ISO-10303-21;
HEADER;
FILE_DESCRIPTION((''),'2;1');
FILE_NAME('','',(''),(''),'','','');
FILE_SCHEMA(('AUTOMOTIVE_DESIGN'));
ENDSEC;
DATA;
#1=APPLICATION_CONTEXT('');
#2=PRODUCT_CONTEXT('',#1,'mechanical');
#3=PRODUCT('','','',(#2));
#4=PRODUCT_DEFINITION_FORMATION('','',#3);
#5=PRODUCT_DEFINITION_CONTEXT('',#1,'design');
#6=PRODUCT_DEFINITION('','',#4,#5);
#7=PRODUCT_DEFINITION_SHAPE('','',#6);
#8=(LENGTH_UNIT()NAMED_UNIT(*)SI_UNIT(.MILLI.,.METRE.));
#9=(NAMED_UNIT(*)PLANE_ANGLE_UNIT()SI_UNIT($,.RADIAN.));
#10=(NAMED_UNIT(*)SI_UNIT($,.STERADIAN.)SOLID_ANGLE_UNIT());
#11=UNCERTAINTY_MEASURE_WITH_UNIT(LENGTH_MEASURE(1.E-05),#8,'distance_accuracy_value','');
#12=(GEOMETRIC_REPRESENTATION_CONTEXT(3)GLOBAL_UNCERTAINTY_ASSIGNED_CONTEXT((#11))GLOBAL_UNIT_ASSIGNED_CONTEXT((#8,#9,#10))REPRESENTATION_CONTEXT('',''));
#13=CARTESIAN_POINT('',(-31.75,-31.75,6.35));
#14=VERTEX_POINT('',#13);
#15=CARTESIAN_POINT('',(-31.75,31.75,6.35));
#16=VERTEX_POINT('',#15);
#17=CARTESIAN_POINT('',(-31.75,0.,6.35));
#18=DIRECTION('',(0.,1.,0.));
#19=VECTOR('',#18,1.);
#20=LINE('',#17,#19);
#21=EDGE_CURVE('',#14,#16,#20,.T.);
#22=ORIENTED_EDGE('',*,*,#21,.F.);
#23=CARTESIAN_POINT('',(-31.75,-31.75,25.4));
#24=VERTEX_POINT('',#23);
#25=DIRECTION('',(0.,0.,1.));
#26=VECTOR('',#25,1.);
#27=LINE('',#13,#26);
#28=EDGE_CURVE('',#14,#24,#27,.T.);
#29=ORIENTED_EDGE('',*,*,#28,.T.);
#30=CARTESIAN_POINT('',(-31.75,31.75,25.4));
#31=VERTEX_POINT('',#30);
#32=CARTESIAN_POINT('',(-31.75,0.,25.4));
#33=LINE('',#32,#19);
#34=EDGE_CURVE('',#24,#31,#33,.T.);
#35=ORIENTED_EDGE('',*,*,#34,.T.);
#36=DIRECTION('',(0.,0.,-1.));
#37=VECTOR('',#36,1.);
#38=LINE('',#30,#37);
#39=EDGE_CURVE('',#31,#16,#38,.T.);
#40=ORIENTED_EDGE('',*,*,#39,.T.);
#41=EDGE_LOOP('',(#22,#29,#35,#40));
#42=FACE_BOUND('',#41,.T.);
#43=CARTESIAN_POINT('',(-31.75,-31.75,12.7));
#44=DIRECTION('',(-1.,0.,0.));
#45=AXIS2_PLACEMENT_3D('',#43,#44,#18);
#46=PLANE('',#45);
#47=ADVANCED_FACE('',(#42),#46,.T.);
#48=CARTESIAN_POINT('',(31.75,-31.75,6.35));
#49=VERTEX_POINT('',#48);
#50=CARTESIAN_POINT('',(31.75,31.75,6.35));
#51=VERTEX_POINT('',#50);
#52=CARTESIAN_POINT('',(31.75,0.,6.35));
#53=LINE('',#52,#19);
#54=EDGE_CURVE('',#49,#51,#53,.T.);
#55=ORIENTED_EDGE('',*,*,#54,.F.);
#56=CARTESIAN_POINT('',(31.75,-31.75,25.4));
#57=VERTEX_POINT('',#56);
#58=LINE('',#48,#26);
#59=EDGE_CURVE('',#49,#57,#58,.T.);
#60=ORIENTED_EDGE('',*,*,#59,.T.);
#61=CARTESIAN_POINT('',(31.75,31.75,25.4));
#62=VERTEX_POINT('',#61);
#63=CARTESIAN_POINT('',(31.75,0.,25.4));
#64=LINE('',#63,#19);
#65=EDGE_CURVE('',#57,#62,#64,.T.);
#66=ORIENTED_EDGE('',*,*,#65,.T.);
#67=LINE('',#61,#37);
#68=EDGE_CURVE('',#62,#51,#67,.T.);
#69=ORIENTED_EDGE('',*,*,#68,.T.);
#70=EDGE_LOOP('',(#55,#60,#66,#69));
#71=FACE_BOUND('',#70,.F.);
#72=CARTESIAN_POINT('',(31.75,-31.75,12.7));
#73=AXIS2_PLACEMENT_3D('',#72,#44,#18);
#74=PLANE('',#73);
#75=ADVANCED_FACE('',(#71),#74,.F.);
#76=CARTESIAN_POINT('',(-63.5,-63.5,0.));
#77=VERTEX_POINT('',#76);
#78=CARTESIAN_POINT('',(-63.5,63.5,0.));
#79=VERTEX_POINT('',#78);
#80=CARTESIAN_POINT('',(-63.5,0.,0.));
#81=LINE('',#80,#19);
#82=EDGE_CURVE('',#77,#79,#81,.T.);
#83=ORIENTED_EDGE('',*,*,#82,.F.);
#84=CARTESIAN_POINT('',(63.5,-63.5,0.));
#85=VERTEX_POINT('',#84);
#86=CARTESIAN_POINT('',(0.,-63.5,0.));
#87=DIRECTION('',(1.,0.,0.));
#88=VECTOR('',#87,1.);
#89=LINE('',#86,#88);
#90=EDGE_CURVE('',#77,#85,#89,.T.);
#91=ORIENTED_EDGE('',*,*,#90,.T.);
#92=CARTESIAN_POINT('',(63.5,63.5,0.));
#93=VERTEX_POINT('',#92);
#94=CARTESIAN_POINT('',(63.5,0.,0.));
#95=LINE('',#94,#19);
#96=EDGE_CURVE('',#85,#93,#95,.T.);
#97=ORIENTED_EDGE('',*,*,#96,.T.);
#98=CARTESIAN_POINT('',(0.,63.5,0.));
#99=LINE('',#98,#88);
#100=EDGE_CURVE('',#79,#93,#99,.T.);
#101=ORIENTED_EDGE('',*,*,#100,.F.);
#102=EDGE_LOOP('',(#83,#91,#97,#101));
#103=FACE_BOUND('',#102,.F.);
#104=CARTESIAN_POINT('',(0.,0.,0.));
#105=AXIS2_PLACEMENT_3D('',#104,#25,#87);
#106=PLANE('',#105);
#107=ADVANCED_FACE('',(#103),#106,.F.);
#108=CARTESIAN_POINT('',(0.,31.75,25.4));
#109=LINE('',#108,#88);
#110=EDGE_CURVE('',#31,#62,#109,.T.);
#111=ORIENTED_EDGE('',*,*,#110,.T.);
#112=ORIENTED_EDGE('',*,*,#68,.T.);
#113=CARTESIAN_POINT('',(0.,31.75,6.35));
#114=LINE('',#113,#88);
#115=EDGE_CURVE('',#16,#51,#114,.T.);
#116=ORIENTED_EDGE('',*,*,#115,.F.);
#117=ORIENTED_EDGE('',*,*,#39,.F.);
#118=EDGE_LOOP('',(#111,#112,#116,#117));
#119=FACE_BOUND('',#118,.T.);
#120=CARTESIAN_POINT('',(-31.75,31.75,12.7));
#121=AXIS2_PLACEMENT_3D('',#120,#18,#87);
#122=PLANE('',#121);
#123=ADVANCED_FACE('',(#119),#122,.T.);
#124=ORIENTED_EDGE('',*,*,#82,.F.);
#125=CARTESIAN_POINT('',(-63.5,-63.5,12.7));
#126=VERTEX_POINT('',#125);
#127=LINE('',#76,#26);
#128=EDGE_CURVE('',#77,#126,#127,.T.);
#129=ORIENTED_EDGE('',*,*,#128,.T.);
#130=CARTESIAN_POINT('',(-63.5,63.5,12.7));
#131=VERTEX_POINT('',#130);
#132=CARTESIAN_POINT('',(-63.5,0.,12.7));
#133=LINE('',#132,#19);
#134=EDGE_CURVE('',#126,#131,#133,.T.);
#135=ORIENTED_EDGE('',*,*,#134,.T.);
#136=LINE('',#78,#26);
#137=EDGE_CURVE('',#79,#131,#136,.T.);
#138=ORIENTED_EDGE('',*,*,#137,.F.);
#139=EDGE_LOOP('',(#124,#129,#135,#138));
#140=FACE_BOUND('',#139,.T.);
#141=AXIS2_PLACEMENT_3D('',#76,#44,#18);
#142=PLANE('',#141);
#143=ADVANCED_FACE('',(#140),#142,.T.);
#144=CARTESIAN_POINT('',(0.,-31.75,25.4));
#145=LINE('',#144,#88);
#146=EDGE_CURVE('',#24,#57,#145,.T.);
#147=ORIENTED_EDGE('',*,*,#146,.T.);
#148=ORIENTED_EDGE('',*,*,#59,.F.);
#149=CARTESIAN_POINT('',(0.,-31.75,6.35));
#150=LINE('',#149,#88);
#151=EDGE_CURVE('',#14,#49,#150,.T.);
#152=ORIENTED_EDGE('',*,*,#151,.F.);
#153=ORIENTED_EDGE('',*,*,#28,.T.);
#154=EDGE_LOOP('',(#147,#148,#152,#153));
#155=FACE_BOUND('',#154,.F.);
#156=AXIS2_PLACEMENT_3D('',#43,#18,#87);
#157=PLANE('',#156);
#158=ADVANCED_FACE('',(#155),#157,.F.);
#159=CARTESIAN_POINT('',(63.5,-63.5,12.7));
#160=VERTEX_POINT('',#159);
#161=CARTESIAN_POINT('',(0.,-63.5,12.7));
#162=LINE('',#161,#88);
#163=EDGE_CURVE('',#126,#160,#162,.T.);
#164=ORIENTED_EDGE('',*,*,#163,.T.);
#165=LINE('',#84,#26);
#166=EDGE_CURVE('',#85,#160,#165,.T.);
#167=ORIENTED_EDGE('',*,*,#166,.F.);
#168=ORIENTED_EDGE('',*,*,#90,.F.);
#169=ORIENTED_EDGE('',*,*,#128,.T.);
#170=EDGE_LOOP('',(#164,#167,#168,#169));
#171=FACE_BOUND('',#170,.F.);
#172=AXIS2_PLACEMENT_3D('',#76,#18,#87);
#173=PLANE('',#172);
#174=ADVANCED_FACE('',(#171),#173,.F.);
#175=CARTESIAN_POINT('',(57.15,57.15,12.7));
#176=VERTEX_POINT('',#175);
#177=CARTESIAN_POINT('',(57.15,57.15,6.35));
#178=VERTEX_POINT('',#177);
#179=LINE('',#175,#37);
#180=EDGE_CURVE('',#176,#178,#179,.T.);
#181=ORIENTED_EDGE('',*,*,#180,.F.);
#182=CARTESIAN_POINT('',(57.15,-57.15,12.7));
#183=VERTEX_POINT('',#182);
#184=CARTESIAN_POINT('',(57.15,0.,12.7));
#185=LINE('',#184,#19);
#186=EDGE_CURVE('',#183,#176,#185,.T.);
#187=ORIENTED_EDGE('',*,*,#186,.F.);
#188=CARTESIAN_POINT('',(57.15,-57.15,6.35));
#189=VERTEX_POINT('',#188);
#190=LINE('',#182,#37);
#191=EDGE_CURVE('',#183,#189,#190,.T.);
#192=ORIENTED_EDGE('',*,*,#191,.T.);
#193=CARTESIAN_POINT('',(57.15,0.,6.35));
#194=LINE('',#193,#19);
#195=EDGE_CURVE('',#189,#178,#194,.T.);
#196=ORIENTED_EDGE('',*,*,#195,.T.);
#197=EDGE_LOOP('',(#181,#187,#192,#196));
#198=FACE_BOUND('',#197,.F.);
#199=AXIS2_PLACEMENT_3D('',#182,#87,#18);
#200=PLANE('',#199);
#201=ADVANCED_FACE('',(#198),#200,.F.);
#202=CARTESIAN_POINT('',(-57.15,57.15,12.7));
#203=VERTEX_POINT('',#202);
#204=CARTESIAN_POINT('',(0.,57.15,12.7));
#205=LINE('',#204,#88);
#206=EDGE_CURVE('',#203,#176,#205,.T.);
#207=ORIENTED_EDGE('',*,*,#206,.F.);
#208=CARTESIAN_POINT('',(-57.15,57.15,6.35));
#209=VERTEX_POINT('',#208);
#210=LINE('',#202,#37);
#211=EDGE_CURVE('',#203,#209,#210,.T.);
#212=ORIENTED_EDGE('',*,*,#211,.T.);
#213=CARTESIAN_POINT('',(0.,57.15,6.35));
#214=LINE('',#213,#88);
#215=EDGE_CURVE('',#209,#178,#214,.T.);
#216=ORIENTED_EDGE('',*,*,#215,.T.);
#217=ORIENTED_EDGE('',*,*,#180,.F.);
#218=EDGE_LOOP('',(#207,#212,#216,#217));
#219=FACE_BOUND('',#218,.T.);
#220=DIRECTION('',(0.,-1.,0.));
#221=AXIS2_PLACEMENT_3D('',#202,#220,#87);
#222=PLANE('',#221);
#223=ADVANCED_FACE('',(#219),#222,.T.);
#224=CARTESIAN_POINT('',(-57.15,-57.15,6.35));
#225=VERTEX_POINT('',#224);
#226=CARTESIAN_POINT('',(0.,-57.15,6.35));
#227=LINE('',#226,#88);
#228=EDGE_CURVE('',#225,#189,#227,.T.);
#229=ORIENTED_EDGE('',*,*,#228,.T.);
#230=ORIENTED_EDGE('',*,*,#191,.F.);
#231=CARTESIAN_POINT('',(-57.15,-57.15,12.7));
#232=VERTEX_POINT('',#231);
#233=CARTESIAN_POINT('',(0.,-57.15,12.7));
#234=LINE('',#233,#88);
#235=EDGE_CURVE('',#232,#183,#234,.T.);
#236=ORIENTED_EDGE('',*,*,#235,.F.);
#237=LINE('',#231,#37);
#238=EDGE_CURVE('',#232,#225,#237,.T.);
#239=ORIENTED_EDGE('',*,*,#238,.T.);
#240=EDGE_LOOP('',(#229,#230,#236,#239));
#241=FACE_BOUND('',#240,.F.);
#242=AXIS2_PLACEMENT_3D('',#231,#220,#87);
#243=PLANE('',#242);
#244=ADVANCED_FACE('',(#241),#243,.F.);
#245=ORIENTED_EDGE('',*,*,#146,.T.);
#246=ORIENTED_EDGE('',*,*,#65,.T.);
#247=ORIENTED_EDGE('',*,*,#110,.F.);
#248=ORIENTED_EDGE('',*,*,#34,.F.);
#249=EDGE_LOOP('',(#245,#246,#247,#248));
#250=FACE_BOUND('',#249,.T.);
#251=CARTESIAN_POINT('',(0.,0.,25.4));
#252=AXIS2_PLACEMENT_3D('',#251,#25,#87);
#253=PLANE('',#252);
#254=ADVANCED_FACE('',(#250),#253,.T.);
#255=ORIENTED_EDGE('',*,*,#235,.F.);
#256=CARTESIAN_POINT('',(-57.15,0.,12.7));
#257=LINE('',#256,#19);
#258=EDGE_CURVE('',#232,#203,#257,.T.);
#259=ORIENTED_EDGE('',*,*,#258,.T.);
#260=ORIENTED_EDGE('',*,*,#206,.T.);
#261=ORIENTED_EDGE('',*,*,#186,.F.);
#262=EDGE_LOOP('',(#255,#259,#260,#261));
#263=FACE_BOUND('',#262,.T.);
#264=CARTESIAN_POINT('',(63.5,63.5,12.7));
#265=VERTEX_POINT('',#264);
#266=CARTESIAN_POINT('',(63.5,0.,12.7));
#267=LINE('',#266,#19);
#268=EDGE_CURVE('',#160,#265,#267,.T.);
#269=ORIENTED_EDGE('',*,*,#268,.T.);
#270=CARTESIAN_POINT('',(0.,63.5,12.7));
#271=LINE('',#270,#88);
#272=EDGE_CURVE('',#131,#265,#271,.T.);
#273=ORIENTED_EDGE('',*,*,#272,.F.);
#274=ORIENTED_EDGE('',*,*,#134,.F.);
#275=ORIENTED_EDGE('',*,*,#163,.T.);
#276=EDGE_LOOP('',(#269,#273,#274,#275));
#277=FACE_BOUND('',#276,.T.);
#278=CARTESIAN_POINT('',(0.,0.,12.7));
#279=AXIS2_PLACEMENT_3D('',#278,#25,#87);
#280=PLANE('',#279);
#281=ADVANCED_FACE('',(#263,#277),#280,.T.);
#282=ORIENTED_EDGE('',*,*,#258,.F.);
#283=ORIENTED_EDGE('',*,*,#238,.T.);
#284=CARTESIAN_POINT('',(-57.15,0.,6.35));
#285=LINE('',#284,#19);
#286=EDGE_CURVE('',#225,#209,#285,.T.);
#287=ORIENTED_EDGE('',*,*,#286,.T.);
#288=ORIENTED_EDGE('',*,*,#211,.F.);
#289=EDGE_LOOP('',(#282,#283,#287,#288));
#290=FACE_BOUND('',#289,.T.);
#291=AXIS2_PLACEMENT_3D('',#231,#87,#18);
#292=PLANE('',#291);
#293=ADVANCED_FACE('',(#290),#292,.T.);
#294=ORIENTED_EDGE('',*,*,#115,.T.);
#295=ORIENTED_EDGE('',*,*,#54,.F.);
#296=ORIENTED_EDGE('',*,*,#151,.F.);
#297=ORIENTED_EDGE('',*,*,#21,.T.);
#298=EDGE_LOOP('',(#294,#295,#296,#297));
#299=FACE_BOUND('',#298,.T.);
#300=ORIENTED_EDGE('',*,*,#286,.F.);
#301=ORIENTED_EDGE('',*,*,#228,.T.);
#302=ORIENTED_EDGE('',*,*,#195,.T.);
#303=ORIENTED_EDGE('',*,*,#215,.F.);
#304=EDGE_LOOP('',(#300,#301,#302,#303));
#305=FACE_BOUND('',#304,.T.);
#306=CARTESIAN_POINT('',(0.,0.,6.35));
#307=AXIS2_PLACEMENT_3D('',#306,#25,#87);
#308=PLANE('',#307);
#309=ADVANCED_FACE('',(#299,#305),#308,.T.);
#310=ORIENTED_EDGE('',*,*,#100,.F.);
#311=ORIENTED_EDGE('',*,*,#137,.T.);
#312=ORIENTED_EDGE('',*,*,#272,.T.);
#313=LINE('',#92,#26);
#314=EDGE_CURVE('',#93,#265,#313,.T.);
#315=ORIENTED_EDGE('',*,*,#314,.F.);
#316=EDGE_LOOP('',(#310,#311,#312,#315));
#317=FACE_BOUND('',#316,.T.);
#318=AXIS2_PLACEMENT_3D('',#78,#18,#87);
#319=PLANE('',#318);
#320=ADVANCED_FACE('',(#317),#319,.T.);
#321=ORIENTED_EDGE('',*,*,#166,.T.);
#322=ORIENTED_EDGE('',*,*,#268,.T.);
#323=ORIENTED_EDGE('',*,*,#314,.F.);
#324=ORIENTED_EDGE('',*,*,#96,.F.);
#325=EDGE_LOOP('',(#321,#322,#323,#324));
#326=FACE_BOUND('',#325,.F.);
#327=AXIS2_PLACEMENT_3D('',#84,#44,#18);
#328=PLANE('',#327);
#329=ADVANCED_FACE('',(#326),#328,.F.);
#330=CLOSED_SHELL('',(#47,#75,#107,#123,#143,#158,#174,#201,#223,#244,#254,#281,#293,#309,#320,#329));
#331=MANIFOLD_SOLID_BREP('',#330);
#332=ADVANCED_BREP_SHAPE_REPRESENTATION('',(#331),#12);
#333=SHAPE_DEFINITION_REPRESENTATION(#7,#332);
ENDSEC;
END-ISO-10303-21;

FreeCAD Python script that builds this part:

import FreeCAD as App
import Part
import Sketcher
from FreeCAD import Vector
Q = App.Units.Quantity


def add_polygon(sketch, points):
    """Adds a closed chain of lines whose ends are joined by coincident constraints."""
    first, n = sketch.GeometryCount, len(points)
    for a, b in zip(points, points[1:] + points[:1]):
        sketch.addGeometry(Part.LineSegment(App.Vector(*a, 0), App.Vector(*b, 0)), False)
    for i in range(n):
        sketch.addConstraint(Sketcher.Constraint("Coincident", first + i, 2, first + (i + 1) % n, 1))

doc = App.newDocument("Part")
body = doc.addObject("PartDesign::Body", "Body")

# Sketch on XY plane
sketch1 = body.newObject("Sketcher::SketchObject", "Sketch")
sketch1.AttachmentSupport = (doc.getObject("XY_Plane"), [""])
sketch1.MapMode = "FlatFace"
add_polygon(sketch1, [(-64, 64), (-64, -64), (64, -64), (64, 64)])  # lines 0-3
sketch1.addConstraint([
    Sketcher.Constraint("Vertical", 0),
    Sketcher.Constraint("Horizontal", 1),
    Sketcher.Constraint("Vertical", 2),
    Sketcher.Constraint("Horizontal", 3),
    Sketcher.Constraint("Symmetric", 0, 2, 2, 2, -1, 1),
    Sketcher.Constraint("Equal", 3, 0),
    Sketcher.Constraint("DistanceX", 1, 1, 1, 2, Q("5 in")),
])
pad1 = body.newObject("PartDesign::Pad", "Pad")
pad1.Profile = sketch1
pad1.Length = Q("0.5 in")

# Sketch on XY plane
sketch2 = body.newObject("Sketcher::SketchObject", "Sketch001")
sketch2.AttachmentSupport = (doc.getObject("XY_Plane"), [""])
sketch2.MapMode = "FlatFace"
sketch2.AttachmentOffset = App.Placement(Vector(0, 0, 0.5 * 25.4), App.Rotation())
add_polygon(sketch2, [(-57, 57), (-57, -57), (57, -57), (57, 57)])  # lines 0-3
add_polygon(sketch2, [(32, -32), (-32, -32), (-32, 32), (32, 32)])  # lines 4-7
sketch2.addConstraint([
    Sketcher.Constraint("Vertical", 0),
    Sketcher.Constraint("Horizontal", 1),
    Sketcher.Constraint("Vertical", 2),
    Sketcher.Constraint("Horizontal", 3),
    Sketcher.Constraint("Horizontal", 4),
    Sketcher.Constraint("Vertical", 5),
    Sketcher.Constraint("Horizontal", 6),
    Sketcher.Constraint("Vertical", 7),
    Sketcher.Constraint("Symmetric", 0, 2, 2, 2, -1, 1),
    Sketcher.Constraint("Symmetric", 4, 2, 6, 2, -1, 1),
    Sketcher.Constraint("Equal", 3, 0),
    Sketcher.Constraint("Equal", 6, 5),
    Sketcher.Constraint("DistanceX", 1, 1, 1, 2, Q("4.5 in")),
    Sketcher.Constraint("DistanceX", 4, 2, 4, 1, Q("2.5 in")),
])
pocket1 = body.newObject("PartDesign::Pocket", "Pocket")
pocket1.Profile = sketch2
pocket1.Length = Q("0.25 in")

# Sketch on XY plane
sketch3 = body.newObject("Sketcher::SketchObject", "Sketch002")
sketch3.AttachmentSupport = (doc.getObject("XY_Plane"), [""])
sketch3.MapMode = "FlatFace"
sketch3.AttachmentOffset = App.Placement(Vector(0, 0, 0.5 * 25.4), App.Rotation())
add_polygon(sketch3, [(-32, 32), (-32, -32), (32, -32), (32, 32)])  # lines 0-3
sketch3.addConstraint([
    Sketcher.Constraint("Vertical", 0),
    Sketcher.Constraint("Horizontal", 1),
    Sketcher.Constraint("Vertical", 2),
    Sketcher.Constraint("Horizontal", 3),
    Sketcher.Constraint("Symmetric", 0, 2, 2, 2, -1, 1),
    Sketcher.Constraint("Equal", 3, 0),
    Sketcher.Constraint("DistanceX", 1, 1, 1, 2, Q("2.5 in")),
])
pad2 = body.newObject("PartDesign::Pad", "Pad001")
pad2.Profile = sketch3
pad2.Length = Q("0.5 in")

doc.recompute()
